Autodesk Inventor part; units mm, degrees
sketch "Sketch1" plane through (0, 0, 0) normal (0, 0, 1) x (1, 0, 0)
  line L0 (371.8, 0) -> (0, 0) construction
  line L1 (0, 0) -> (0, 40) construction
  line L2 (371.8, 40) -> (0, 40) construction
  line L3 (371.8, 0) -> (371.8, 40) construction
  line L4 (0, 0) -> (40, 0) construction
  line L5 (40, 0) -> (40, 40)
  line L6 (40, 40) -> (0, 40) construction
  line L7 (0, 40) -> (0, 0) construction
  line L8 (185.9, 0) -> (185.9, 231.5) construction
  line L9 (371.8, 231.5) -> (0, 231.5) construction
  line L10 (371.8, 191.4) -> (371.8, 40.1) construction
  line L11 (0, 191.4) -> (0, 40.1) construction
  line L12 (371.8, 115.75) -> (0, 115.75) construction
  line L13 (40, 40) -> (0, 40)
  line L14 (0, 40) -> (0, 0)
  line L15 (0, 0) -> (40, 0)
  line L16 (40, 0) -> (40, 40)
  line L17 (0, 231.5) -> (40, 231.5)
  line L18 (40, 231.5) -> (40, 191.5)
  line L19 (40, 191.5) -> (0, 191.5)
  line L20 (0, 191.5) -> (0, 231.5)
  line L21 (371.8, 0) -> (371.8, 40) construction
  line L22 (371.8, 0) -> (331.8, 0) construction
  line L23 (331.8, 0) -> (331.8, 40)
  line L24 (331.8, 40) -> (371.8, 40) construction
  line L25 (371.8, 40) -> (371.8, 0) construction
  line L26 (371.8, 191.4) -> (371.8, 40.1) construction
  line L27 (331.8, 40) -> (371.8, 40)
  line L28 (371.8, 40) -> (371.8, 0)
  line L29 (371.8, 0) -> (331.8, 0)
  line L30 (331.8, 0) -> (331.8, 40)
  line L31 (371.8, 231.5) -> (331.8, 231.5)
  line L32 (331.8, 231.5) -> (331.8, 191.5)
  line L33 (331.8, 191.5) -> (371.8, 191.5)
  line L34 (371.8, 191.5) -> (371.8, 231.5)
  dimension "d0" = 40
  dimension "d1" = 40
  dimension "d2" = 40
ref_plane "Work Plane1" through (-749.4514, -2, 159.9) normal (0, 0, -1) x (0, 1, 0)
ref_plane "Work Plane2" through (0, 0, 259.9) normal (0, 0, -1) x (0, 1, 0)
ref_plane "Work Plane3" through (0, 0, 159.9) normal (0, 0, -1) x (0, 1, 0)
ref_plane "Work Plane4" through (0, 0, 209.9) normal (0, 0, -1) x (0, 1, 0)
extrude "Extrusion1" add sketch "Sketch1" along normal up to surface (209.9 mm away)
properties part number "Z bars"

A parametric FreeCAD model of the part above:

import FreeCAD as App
import Part
import Sketcher
from FreeCAD import Vector
Q = App.Units.Quantity


def add_polygon(sketch, points):
    """Adds a closed chain of lines whose ends are joined by coincident constraints."""
    first, n = sketch.GeometryCount, len(points)
    for a, b in zip(points, points[1:] + points[:1]):
        sketch.addGeometry(Part.LineSegment(App.Vector(*a, 0), App.Vector(*b, 0)), False)
    for i in range(n):
        sketch.addConstraint(Sketcher.Constraint("Coincident", first + i, 2, first + (i + 1) % n, 1))

doc = App.newDocument("Part")
body = doc.addObject("PartDesign::Body", "Body")
body.AllowCompound = True

sketch1 = body.newObject("Sketcher::SketchObject", "Sketch")
sketch1.AttachmentSupport = (doc.getObject("XY_Plane"), [""])
sketch1.MapMode = "FlatFace"
add_polygon(sketch1, [(0, 0), (40, 0), (40, 40), (0, 40)])
add_polygon(sketch1, [(40, 232), (0, 232), (0, 192), (40, 192)])
add_polygon(sketch1, [(332, 40), (332, 0), (372, 0), (372, 40)])
add_polygon(sketch1, [(372, 192), (372, 232), (332, 232), (332, 192)])
sketch1.addConstraint(Sketcher.Constraint("Horizontal", 0))
sketch1.addConstraint(Sketcher.Constraint("Vertical", 1))
sketch1.addConstraint(Sketcher.Constraint("Horizontal", 2))
sketch1.addConstraint(Sketcher.Constraint("Vertical", 3))
sketch1.addConstraint(Sketcher.Constraint("Horizontal", 4))
sketch1.addConstraint(Sketcher.Constraint("Vertical", 5))
sketch1.addConstraint(Sketcher.Constraint("Horizontal", 6))
sketch1.addConstraint(Sketcher.Constraint("Vertical", 7))
sketch1.addConstraint(Sketcher.Constraint("Vertical", 8))
sketch1.addConstraint(Sketcher.Constraint("Horizontal", 9))
sketch1.addConstraint(Sketcher.Constraint("Vertical", 10))
sketch1.addConstraint(Sketcher.Constraint("Horizontal", 11))
sketch1.addConstraint(Sketcher.Constraint("Vertical", 12))
sketch1.addConstraint(Sketcher.Constraint("Horizontal", 13))
sketch1.addConstraint(Sketcher.Constraint("Vertical", 14))
sketch1.addConstraint(Sketcher.Constraint("Horizontal", 15))
sketch1.addConstraint(Sketcher.Constraint("Coincident", 3, 2, -1, 1))
sketch1.addConstraint(Sketcher.Constraint("PointOnObject", 4, 2, -2))
sketch1.addConstraint(Sketcher.Constraint("PointOnObject", 8, 2, -1))
sketch1.addConstraint(Sketcher.Constraint("Horizontal", 2, 2, 10, 2))
sketch1.addConstraint(Sketcher.Constraint("Horizontal", 7, 2, 12, 2))
sketch1.addConstraint(Sketcher.Constraint("Horizontal", 6, 2, 14, 2))
sketch1.addConstraint(Sketcher.Constraint("Vertical", 1, 2, 6, 2))
sketch1.addConstraint(Sketcher.Constraint("Vertical", 10, 2, 12, 2))
sketch1.addConstraint(Sketcher.Constraint("Vertical", 11, 2, 13, 2))
sketch1.addConstraint(Sketcher.Constraint("Equal", 6, 9))
sketch1.addConstraint(Sketcher.Constraint("Equal", 15, 1))
sketch1.addConstraint(Sketcher.Constraint("Equal", 3, 5))
sketch1.addConstraint(Sketcher.Constraint("DistanceX", 0, 1, 0, 2, Q("40 mm")))
sketch1.addConstraint(Sketcher.Constraint("DistanceY", -1, 1, 4, 2, Q("231.5 mm")))
sketch1.addConstraint(Sketcher.Constraint("DistanceX", -1, 1, 8, 2, Q("331.8 mm")))
pad1 = body.newObject("PartDesign::Pad", "Pad")
pad1.Profile = sketch1
pad1.Length = 209.9

doc.recompute()
